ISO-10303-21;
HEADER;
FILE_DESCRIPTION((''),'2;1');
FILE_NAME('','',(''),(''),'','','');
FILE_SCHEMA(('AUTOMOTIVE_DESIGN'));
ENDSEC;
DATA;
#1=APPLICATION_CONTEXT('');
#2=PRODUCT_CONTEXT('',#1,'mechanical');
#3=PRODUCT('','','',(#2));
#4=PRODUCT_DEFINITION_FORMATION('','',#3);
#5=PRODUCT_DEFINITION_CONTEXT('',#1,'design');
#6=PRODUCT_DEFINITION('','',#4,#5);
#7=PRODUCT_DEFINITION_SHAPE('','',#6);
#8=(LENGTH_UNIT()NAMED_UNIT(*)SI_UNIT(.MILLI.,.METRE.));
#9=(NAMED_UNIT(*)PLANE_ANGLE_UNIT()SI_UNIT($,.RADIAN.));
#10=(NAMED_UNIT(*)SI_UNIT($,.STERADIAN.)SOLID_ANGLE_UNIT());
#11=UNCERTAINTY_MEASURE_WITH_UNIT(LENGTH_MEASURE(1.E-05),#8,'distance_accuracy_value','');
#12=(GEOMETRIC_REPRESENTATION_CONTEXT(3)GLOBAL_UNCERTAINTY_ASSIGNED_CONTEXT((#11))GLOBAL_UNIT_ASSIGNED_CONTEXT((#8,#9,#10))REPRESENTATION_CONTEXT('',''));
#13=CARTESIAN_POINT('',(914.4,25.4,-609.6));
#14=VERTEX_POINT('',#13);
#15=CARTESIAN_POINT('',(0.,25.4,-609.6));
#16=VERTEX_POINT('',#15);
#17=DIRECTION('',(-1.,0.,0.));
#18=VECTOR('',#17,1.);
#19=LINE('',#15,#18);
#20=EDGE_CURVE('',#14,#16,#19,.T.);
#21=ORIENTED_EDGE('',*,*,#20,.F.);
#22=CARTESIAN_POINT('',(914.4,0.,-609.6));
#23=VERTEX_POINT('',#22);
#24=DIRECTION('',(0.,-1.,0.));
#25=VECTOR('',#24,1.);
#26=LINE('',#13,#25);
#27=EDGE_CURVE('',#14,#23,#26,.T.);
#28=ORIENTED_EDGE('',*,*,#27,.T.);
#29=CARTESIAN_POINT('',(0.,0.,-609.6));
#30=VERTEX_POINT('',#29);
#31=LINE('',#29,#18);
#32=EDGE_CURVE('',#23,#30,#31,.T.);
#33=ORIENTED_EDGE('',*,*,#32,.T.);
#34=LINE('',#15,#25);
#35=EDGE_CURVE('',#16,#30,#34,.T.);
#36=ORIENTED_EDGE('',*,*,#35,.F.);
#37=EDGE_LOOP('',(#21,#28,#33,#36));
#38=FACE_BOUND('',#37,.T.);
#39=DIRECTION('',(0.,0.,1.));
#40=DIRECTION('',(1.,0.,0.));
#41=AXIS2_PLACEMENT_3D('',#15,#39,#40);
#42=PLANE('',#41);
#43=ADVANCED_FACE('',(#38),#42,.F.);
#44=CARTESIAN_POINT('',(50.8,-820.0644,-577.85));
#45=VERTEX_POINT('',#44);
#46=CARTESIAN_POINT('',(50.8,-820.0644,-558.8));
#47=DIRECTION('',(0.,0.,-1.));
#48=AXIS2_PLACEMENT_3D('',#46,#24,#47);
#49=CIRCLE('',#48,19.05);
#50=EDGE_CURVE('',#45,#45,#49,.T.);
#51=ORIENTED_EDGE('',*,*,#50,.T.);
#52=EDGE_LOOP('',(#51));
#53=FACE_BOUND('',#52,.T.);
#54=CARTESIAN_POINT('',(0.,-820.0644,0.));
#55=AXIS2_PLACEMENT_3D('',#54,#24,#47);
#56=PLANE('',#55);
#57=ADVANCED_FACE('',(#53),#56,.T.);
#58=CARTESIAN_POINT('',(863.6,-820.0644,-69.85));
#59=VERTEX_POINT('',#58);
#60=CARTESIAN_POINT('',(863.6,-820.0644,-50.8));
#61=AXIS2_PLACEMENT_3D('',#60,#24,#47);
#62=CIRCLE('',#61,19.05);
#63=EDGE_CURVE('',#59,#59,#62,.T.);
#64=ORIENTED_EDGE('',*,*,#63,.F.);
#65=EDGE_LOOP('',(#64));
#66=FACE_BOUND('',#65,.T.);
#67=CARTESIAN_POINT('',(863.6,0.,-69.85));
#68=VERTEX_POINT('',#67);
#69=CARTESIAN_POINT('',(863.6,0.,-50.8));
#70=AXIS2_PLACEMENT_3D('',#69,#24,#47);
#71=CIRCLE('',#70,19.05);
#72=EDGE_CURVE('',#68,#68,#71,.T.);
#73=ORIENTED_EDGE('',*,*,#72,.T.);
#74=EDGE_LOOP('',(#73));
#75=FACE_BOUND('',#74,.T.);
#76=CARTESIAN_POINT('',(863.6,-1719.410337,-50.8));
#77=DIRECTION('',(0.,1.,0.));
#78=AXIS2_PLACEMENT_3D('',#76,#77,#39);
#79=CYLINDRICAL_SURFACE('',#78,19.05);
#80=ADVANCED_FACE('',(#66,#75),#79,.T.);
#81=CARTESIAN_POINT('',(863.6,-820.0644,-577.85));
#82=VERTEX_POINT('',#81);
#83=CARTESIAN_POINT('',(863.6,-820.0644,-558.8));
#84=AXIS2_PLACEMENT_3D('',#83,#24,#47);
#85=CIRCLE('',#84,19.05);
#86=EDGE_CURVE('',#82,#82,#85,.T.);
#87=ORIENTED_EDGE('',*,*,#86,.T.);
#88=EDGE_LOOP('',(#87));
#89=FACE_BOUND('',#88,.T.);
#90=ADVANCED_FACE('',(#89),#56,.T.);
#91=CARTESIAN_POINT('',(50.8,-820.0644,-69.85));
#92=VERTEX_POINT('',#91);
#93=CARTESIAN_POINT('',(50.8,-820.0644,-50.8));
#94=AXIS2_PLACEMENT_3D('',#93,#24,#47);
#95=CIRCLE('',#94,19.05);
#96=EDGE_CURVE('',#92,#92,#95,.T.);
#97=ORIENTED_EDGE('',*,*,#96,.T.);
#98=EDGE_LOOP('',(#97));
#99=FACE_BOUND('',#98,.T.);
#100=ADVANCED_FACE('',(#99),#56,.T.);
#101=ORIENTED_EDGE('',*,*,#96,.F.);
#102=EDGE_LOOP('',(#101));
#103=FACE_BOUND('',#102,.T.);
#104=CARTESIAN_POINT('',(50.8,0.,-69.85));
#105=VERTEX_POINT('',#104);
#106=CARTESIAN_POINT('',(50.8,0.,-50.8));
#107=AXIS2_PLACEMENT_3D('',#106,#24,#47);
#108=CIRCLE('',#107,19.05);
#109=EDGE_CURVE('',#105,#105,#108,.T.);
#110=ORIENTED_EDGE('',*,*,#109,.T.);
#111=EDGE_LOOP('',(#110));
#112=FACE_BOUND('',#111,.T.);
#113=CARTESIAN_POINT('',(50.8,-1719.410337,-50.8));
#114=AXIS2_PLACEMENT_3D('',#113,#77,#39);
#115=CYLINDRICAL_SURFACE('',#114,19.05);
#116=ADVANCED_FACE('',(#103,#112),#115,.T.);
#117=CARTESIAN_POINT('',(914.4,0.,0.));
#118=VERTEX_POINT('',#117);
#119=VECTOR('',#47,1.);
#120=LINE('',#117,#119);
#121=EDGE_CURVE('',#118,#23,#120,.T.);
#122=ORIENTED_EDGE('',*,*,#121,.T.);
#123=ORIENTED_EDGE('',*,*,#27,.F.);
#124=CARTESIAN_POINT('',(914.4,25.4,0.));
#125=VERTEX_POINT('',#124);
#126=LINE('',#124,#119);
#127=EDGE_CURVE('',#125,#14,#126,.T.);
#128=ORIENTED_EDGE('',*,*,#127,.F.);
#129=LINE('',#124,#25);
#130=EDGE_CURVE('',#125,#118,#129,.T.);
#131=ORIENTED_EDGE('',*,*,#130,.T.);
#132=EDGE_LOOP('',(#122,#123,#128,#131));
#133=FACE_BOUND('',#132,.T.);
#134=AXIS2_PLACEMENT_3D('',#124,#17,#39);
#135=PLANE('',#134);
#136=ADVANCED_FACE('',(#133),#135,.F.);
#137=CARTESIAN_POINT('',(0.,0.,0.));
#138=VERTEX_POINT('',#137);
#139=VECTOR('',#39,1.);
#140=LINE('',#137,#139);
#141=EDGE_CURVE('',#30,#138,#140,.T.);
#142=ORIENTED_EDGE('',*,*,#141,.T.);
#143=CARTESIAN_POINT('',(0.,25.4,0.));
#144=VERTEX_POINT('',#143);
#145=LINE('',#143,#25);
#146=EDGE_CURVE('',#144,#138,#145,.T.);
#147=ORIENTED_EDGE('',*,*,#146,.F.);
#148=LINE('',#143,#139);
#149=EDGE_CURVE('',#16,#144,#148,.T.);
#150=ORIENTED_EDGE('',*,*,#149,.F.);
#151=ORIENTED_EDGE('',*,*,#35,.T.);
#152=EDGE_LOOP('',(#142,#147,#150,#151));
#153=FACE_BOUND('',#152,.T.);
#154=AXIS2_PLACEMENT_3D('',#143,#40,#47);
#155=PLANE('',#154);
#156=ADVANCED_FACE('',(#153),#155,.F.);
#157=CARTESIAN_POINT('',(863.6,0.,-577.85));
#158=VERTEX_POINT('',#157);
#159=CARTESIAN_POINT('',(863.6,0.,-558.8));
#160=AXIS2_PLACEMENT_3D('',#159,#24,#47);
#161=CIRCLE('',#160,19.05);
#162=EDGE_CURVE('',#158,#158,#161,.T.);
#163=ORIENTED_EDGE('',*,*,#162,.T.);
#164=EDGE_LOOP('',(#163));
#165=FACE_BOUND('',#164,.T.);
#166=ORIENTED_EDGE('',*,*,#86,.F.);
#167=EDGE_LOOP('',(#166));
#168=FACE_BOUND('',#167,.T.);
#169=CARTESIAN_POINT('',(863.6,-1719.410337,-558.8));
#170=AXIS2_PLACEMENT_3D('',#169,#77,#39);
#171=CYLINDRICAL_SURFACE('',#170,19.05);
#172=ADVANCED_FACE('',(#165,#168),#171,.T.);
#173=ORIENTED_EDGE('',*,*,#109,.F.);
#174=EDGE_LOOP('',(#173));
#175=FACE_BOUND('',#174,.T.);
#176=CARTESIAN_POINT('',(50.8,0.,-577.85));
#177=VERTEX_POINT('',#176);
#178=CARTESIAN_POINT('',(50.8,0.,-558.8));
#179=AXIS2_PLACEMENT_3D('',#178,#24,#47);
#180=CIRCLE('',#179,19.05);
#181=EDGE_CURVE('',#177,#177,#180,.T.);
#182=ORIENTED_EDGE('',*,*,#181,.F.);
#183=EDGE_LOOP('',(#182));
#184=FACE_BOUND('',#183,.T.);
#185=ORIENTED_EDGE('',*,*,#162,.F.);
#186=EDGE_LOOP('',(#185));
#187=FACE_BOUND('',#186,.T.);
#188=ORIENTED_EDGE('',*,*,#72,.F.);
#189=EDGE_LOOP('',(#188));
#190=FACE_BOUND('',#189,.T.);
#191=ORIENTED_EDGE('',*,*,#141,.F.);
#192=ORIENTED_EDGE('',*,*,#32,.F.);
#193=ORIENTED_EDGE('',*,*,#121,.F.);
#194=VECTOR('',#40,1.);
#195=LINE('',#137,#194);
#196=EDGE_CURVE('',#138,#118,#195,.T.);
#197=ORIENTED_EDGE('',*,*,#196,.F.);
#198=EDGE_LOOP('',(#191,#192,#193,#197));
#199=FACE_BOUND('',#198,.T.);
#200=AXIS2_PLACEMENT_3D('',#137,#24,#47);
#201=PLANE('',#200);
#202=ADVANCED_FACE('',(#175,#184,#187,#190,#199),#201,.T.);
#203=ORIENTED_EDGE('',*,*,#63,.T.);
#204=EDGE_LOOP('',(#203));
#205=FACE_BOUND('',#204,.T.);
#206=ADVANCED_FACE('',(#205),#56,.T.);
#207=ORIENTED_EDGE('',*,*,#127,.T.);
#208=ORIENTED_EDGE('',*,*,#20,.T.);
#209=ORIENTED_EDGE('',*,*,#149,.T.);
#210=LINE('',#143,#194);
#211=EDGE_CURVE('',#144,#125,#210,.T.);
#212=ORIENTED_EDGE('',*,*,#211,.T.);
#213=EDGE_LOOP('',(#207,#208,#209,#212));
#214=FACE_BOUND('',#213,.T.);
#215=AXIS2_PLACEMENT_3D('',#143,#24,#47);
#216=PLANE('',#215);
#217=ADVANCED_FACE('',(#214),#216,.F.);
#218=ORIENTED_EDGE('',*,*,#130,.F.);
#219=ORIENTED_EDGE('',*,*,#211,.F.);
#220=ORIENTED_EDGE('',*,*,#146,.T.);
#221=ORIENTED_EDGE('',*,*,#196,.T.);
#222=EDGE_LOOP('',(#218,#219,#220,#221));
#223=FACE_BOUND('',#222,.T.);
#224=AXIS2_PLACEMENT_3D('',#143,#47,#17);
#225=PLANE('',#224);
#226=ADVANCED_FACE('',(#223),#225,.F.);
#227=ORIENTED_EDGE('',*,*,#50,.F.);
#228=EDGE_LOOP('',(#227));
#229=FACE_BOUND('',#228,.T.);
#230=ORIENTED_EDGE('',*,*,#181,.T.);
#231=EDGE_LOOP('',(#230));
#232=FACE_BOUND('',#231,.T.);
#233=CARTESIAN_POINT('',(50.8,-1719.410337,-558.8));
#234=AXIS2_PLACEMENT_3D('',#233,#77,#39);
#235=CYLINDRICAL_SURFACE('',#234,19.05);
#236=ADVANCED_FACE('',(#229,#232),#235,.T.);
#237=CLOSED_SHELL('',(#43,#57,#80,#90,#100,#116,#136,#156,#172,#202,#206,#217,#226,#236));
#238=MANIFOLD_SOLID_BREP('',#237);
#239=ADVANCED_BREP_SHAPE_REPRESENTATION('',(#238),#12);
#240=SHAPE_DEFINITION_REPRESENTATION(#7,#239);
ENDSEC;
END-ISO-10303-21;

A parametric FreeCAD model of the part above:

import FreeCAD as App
import Part
import Sketcher
Q = App.Units.Quantity

doc = App.newDocument("Part")
body = doc.addObject("PartDesign::Body", "Body")

sketch1 = doc.addObject("Sketcher::SketchObject", "Sketch")
body.addObject(sketch1)
sketch1.AttachmentSupport = (doc.XZ_Plane, [""])
sketch1.MapMode = "FlatFace"
sketch1.addGeometry(Part.LineSegment(App.Vector(0, -609.6, 0), App.Vector(0, 0, 0)), False)
sketch1.addGeometry(Part.LineSegment(App.Vector(0, 0, 0), App.Vector(914.4, 0, 0)), False)
sketch1.addGeometry(Part.LineSegment(App.Vector(914.4, 0, 0), App.Vector(914.4, -609.6, 0)), False)
sketch1.addGeometry(Part.LineSegment(App.Vector(914.4, -609.6, 0), App.Vector(0, -609.6, 0)), False)
sketch1.addConstraint(Sketcher.Constraint("Coincident", 0, 2, 1, 1))
sketch1.addConstraint(Sketcher.Constraint("Coincident", 1, 2, 2, 1))
sketch1.addConstraint(Sketcher.Constraint("Coincident", 2, 2, 3, 1))
sketch1.addConstraint(Sketcher.Constraint("Coincident", 3, 2, 0, 1))
sketch1.addConstraint(Sketcher.Constraint("Vertical", 0))
sketch1.addConstraint(Sketcher.Constraint("Horizontal", 1))
sketch1.addConstraint(Sketcher.Constraint("Vertical", 2))
sketch1.addConstraint(Sketcher.Constraint("Horizontal", 3))
sketch1.addConstraint(Sketcher.Constraint("Coincident", 0, 2, -1, 1))
sketch1.addConstraint(Sketcher.Constraint("DistanceX", 1, 1, 1, 2, Q("36 in")))
sketch1.addConstraint(Sketcher.Constraint("DistanceY", 0, 1, 0, 2, Q("24 in")))
pad1 = doc.addObject("PartDesign::Pad", "Pad")
body.addObject(pad1)
pad1.Profile = sketch1
pad1.Length = Q("1 in")
pad1.Reversed = True

sketch2 = doc.addObject("Sketcher::SketchObject", "Sketch001")
body.addObject(sketch2)
sketch2.AttachmentSupport = (doc.XZ_Plane, [""])
sketch2.MapMode = "FlatFace"
sketch2.addGeometry(Part.Circle(App.Vector(50.8, -50.8, 0), App.Vector(0, 0, 1), 19.05), False)
sketch2.addGeometry(Part.Circle(App.Vector(863.6, -50.8, 0), App.Vector(0, 0, 1), 19.05), False)
sketch2.addGeometry(Part.Circle(App.Vector(50.8, -558.8, 0), App.Vector(0, 0, 1), 19.05), False)
sketch2.addGeometry(Part.Circle(App.Vector(863.6, -558.8, 0), App.Vector(0, 0, 1), 19.05), False)
sketch2.addConstraint(Sketcher.Constraint("Equal", 0, 1))
sketch2.addConstraint(Sketcher.Constraint("Equal", 1, 2))
sketch2.addConstraint(Sketcher.Constraint("Equal", 2, 3))
sketch2.addConstraint(Sketcher.Constraint("Horizontal", 0, 3, 1, 3))
sketch2.addConstraint(Sketcher.Constraint("Horizontal", 2, 3, 3, 3))
sketch2.addConstraint(Sketcher.Constraint("Vertical", 0, 3, 2, 3))
sketch2.addConstraint(Sketcher.Constraint("Vertical", 1, 3, 3, 3))
sketch2.addConstraint(Sketcher.Constraint("Diameter", 0, Q("1.5 in")))
sketch2.addConstraint(Sketcher.Constraint("DistanceX", -1, 1, 0, 3, Q("2 in")))
sketch2.addConstraint(Sketcher.Constraint("DistanceY", 0, 3, -1, 1, Q("2 in")))
sketch2.addConstraint(Sketcher.Constraint("DistanceX", -1, 1, 1, 3, Q("34 in")))
sketch2.addConstraint(Sketcher.Constraint("DistanceY", 2, 3, -1, 1, Q("22 in")))
pad2 = doc.addObject("PartDesign::Pad", "Pad001")
body.addObject(pad2)
pad2.Profile = sketch2
pad2.Length = Q("32.286 in")

doc.recompute()
